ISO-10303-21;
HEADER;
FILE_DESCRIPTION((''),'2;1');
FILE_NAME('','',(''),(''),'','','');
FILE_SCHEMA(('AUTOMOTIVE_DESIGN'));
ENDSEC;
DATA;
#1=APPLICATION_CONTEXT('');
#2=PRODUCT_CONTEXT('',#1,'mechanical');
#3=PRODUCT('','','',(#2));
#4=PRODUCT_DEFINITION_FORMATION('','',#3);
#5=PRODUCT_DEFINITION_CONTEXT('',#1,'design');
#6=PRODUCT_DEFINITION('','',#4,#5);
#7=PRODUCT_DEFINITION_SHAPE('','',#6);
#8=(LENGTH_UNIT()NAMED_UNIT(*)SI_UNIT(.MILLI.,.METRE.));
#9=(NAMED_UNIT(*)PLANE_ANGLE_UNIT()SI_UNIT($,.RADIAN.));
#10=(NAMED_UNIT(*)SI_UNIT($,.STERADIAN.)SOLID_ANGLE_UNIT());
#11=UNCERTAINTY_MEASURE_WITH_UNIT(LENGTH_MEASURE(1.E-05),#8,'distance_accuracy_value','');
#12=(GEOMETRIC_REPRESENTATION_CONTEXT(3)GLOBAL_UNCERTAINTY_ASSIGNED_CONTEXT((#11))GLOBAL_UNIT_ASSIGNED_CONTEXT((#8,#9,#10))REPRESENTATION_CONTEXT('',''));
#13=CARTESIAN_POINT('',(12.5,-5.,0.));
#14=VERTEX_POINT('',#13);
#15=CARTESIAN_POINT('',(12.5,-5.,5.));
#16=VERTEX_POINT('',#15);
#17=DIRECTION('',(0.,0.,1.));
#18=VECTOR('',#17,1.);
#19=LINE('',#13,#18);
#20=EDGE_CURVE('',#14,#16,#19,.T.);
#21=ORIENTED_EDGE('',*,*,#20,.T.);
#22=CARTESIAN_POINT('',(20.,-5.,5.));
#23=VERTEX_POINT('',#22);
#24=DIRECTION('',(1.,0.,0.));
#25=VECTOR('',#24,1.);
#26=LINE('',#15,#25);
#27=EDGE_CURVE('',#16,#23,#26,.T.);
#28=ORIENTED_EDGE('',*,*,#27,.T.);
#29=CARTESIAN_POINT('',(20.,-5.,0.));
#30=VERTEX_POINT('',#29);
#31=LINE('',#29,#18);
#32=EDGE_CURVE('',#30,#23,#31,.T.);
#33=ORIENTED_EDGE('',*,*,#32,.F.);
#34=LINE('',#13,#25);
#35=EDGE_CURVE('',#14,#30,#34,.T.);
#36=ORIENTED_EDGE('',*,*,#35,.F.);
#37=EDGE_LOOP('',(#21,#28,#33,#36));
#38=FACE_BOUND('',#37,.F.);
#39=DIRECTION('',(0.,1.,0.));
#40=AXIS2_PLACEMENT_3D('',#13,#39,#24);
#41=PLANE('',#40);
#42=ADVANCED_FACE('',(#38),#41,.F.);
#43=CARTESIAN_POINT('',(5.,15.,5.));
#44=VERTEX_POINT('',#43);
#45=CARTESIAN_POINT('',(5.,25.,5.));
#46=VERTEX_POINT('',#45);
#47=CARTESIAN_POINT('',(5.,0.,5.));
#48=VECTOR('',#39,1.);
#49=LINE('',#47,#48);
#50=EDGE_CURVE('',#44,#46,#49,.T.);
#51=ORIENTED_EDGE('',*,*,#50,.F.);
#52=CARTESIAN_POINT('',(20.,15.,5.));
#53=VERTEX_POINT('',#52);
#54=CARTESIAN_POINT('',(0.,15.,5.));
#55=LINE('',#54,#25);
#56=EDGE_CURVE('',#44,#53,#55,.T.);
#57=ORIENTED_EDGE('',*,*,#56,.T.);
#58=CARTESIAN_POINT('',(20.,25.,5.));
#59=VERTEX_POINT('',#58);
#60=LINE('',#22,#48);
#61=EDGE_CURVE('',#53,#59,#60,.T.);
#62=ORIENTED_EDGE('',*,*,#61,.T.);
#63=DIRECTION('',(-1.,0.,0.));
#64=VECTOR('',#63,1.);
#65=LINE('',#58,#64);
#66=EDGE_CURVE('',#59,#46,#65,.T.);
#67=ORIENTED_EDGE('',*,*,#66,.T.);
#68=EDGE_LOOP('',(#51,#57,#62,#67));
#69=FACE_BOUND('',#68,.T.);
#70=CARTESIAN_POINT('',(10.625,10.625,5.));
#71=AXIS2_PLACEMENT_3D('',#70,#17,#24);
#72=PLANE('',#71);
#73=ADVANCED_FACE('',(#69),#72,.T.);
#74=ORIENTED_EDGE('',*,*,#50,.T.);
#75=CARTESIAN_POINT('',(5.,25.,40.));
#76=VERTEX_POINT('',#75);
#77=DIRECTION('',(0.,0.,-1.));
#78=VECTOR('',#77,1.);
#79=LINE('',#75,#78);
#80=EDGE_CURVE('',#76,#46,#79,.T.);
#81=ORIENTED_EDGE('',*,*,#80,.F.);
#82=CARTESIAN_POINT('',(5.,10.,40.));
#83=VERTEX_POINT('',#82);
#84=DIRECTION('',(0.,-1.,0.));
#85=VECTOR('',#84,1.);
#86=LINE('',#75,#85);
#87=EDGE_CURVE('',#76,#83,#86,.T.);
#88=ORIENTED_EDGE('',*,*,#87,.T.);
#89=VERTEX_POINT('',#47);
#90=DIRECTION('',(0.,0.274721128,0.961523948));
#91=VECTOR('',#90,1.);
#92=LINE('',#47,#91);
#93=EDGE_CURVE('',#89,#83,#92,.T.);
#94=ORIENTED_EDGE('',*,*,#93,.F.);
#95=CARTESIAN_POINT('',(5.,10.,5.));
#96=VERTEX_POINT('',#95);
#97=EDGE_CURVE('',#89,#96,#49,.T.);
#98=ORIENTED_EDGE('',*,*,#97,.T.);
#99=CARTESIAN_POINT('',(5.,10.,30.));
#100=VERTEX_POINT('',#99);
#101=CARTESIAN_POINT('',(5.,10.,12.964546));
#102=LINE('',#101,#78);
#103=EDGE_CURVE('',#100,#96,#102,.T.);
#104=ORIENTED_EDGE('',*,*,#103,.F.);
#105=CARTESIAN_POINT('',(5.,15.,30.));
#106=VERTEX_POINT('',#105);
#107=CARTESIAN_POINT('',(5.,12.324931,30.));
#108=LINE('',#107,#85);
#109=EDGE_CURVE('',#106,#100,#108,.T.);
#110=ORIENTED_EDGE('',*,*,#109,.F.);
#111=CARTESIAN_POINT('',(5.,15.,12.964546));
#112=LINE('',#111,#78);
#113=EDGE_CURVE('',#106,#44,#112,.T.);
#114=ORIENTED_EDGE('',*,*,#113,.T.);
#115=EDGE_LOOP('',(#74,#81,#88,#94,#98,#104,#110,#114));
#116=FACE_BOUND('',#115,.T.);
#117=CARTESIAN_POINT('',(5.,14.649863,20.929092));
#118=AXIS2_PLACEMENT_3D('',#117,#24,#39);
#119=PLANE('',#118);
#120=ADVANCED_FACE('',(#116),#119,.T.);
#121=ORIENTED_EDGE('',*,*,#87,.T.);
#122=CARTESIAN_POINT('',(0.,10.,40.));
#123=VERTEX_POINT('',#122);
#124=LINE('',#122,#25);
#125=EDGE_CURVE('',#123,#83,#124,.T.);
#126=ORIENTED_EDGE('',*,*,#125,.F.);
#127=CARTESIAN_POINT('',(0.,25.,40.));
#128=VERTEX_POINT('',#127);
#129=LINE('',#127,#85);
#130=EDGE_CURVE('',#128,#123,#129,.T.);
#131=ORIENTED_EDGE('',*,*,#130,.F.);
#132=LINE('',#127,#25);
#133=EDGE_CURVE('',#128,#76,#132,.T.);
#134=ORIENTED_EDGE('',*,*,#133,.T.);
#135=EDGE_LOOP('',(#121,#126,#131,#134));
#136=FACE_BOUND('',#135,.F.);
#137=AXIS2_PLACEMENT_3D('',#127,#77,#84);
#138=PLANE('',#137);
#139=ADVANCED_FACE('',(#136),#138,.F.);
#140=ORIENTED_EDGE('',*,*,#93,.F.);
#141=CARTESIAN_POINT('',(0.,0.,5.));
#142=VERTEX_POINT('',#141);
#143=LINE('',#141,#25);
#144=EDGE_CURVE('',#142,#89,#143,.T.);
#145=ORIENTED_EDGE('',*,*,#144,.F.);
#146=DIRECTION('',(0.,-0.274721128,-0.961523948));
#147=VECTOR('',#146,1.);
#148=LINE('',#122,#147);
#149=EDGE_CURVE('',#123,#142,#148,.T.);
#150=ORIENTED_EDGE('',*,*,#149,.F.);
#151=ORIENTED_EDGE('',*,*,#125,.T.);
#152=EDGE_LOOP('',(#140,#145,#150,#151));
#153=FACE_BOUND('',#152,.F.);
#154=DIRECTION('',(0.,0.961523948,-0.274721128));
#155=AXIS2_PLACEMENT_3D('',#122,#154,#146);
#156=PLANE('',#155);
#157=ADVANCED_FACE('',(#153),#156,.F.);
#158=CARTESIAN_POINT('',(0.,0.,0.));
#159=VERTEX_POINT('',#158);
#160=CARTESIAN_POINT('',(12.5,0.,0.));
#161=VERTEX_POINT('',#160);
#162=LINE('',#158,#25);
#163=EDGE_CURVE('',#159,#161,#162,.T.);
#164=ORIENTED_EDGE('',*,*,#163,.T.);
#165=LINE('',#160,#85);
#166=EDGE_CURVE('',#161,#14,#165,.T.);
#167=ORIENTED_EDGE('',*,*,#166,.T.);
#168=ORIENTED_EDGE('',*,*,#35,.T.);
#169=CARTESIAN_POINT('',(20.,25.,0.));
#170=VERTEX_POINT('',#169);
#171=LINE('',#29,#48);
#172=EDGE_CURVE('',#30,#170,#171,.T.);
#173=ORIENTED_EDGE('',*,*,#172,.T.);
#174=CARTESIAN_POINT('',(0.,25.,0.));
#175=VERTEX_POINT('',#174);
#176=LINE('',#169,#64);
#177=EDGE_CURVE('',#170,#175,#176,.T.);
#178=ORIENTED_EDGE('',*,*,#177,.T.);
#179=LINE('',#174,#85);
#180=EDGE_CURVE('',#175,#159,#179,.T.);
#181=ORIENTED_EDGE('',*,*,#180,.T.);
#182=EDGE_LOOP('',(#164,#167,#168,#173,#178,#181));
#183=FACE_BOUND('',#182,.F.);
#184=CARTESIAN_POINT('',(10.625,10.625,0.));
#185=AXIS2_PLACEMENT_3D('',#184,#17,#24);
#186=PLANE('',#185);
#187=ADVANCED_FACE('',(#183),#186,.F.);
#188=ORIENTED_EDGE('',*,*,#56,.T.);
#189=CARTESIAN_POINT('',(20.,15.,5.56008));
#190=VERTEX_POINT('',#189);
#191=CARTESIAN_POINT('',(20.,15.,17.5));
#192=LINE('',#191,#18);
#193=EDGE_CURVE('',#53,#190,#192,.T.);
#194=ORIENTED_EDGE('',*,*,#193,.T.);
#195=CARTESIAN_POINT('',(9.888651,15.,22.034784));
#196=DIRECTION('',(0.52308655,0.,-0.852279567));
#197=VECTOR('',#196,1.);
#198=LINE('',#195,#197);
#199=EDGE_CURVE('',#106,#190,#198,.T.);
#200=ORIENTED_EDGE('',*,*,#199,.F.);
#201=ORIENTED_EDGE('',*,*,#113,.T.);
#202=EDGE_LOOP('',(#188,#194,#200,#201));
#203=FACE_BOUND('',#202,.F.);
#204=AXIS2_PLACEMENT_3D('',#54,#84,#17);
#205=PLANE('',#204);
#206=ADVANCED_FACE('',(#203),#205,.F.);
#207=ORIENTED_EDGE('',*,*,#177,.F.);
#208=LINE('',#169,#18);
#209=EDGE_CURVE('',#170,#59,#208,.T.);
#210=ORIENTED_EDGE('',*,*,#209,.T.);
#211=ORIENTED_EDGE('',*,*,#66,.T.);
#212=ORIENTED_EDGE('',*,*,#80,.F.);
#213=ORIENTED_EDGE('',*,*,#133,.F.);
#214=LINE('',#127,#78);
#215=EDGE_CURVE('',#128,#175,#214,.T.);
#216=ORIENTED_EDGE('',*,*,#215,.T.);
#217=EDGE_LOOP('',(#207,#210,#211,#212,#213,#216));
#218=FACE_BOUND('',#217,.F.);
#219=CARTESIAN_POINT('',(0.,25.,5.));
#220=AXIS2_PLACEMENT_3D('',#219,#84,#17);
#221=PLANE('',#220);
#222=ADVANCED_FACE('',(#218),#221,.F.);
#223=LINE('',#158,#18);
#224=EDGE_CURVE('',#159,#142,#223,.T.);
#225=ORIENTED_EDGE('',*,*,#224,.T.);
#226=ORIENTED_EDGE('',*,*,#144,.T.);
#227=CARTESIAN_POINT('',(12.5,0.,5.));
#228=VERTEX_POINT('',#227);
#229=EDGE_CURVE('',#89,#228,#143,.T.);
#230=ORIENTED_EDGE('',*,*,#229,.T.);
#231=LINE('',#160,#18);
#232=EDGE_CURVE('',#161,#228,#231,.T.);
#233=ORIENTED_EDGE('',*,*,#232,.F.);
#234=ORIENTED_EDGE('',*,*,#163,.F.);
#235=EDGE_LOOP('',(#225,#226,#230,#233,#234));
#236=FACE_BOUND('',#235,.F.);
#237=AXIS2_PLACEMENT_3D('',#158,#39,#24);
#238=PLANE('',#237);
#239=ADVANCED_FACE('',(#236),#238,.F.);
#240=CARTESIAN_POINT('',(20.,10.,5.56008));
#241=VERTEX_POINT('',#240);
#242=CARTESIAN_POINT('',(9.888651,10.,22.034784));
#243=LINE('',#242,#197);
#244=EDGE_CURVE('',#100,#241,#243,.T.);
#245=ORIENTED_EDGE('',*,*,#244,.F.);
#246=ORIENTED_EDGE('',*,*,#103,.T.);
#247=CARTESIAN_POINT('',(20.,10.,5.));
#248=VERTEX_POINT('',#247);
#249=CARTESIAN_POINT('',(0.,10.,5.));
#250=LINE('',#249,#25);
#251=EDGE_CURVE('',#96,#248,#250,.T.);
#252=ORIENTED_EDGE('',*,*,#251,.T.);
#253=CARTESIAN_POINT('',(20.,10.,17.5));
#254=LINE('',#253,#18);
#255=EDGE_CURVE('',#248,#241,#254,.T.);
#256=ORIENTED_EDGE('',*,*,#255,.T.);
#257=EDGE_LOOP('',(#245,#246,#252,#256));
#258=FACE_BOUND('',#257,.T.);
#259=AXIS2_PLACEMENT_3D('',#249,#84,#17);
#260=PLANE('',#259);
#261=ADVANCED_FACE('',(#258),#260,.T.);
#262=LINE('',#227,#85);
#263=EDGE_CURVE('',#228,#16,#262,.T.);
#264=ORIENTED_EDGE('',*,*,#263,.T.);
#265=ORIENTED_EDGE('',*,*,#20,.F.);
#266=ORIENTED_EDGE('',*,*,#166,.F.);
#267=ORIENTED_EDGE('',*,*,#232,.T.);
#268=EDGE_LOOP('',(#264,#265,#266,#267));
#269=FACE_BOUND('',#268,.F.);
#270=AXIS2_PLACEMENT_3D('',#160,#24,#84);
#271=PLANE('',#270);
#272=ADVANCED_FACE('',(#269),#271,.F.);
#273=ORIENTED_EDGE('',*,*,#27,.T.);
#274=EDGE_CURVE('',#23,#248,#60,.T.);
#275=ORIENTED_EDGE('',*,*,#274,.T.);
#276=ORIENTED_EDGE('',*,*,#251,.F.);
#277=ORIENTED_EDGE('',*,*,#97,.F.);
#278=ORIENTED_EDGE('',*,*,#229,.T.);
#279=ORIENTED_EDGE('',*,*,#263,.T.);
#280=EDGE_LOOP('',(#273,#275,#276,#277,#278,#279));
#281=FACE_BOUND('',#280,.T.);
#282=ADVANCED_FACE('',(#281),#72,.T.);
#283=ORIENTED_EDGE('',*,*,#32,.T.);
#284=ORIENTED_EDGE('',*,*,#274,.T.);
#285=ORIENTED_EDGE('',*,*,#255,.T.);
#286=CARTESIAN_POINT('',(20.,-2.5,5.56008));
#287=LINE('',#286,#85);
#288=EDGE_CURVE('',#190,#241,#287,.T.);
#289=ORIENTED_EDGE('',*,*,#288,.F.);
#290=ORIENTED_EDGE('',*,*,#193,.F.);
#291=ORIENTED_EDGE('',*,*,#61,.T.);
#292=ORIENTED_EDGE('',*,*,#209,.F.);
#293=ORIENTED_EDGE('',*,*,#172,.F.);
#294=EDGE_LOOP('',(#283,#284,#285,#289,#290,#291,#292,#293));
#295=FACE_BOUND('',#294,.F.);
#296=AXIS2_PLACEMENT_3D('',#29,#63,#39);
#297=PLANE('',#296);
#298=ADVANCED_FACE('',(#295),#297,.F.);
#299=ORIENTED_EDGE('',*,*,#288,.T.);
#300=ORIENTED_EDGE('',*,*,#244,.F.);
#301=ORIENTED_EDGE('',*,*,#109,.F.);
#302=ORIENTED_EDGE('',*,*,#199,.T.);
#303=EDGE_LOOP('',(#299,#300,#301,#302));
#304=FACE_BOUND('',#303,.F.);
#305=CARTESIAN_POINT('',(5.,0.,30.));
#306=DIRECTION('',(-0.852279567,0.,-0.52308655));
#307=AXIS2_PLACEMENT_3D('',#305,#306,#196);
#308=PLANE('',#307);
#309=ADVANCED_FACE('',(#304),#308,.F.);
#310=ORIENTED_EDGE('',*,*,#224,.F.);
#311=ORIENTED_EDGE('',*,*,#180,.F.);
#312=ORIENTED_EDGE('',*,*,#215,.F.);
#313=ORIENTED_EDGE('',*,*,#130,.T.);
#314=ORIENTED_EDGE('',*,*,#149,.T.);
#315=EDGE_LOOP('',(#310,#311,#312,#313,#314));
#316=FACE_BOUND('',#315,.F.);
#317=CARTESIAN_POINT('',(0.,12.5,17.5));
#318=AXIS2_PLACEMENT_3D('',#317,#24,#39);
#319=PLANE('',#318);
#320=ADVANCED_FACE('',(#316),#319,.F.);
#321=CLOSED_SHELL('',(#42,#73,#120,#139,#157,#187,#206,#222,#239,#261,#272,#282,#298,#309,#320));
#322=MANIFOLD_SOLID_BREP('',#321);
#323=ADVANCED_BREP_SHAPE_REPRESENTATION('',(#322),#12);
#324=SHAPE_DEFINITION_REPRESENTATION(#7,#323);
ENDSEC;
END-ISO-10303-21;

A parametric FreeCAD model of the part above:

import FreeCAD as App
import Part
import Sketcher

V = App.Vector
Q = App.Units.Quantity


def add_polygon(sketch, points):
    """Adds a closed chain of lines whose ends are joined by coincident constraints."""
    first, n = sketch.GeometryCount, len(points)
    for a, b in zip(points, points[1:] + points[:1]):
        sketch.addGeometry(Part.LineSegment(App.Vector(*a, 0), App.Vector(*b, 0)), False)
    for i in range(n):
        sketch.addConstraint(Sketcher.Constraint("Coincident", first + i, 2, first + (i + 1) % n, 1))

doc = App.newDocument("Part")
body = doc.addObject("PartDesign::Body", "Body")

# Sketch on XY plane
sketch1 = body.newObject("Sketcher::SketchObject", "Sketch")
sketch1.AttachmentSupport = (doc.getObject("XY_Plane"), [""])
sketch1.MapMode = "FlatFace"
add_polygon(sketch1, [(0, 25), (0, 0), (12, 0), (12, -5), (20, -5), (20, 25)])  # lines 0-5
sketch1.addConstraint([
    Sketcher.Constraint("Vertical", 0),
    Sketcher.Constraint("Horizontal", 1),
    Sketcher.Constraint("Vertical", 2),
    Sketcher.Constraint("Horizontal", 3),
    Sketcher.Constraint("Vertical", 4),
    Sketcher.Constraint("Horizontal", 5),
    Sketcher.Constraint("Coincident", 0, 2, -1, 1),
    Sketcher.Constraint("DistanceX", 5, 2, 5, 1, Q("20 mm")),
    Sketcher.Constraint("DistanceY", 0, 2, 0, 1, Q("25 mm")),
    Sketcher.Constraint("DistanceY", 2, 2, 2, 1, Q("5 mm")),
    Sketcher.Constraint("DistanceX", 1, 1, 1, 2, Q("12.5 mm")),
])
pad1 = body.newObject("PartDesign::Pad", "Pad")
pad1.Profile = sketch1
pad1.Length = 5

# Sketch on YZ plane
sketch2 = body.newObject("Sketcher::SketchObject", "Sketch001")
sketch2.AttachmentSupport = (doc.getObject("YZ_Plane"), [""])
sketch2.MapMode = "FlatFace"
add_polygon(sketch2, [(10, 40), (0, 5), (25, 5), (25, 40)])  # lines 0-3
sketch2.addConstraint([
    Sketcher.Constraint("Horizontal", 1),
    Sketcher.Constraint("Vertical", 2),
    Sketcher.Constraint("Horizontal", 3),
    Sketcher.Constraint("PointOnObject", 0, 2, -2),
    Sketcher.Constraint("DistanceX", 1, 1, 1, 2, Q("25 mm")),
    Sketcher.Constraint("DistanceX", 3, 2, 3, 1, Q("15 mm")),
    Sketcher.Constraint("DistanceY", 2, 1, 2, 2, Q("35 mm")),
    Sketcher.Constraint("DistanceY", -1, 1, 0, 2, Q("5 mm")),
])
pad2 = body.newObject("PartDesign::Pad", "Pad001")
pad2.Profile = sketch2
pad2.Length = 5

# Sketch on YZ plane
sketch3 = body.newObject("Sketcher::SketchObject", "Sketch002")
sketch3.AttachmentSupport = (doc.getObject("YZ_Plane"), [""])
sketch3.MapMode = "FlatFace"
add_polygon(sketch3, [(10, 30), (10, 5), (15, 5), (15, 30)])  # lines 0-3
sketch3.addConstraint([
    Sketcher.Constraint("Vertical", 0),
    Sketcher.Constraint("Horizontal", 1),
    Sketcher.Constraint("Vertical", 2),
    Sketcher.Constraint("Horizontal", 3),
    Sketcher.Constraint("DistanceX", 1, 1, 1, 2, Q("5 mm")),
    Sketcher.Constraint("DistanceY", 0, 2, 0, 1, Q("25 mm")),
    Sketcher.Constraint("DistanceX", -1, 1, 0, 2, Q("10 mm")),
    Sketcher.Constraint("DistanceY", -1, 1, 0, 2, Q("5 mm")),
])
pad3 = body.newObject("PartDesign::Pad", "Pad002")
pad3.Profile = sketch3
pad3.Length = 20

# Sketch on XZ plane
sketch4 = body.newObject("Sketcher::SketchObject", "Sketch003")
sketch4.AttachmentSupport = (doc.getObject("XZ_Plane"), [""])
sketch4.MapMode = "FlatFace"
add_polygon(sketch4, [(20, 30), (5, 30), (20, 5)])  # lines 0-2
sketch4.addConstraint([
    Sketcher.Constraint("Horizontal", 0),
    Sketcher.Constraint("Vertical", 2),
    Sketcher.Constraint("DistanceY", 2, 1, 2, 2, Q("25 mm")),
    Sketcher.Constraint("DistanceX", -1, 1, 0, 2, Q("5 mm")),
    Sketcher.Constraint("DistanceY", -1, 1, 0, 2, Q("30 mm")),
    Sketcher.Constraint("DistanceX", 0, 2, 0, 1, Q("15.343749 mm")),
])
pocket1 = body.newObject("PartDesign::Pocket", "Pocket")
pocket1.Profile = sketch4
pocket1.Length = 25

doc.recompute()
